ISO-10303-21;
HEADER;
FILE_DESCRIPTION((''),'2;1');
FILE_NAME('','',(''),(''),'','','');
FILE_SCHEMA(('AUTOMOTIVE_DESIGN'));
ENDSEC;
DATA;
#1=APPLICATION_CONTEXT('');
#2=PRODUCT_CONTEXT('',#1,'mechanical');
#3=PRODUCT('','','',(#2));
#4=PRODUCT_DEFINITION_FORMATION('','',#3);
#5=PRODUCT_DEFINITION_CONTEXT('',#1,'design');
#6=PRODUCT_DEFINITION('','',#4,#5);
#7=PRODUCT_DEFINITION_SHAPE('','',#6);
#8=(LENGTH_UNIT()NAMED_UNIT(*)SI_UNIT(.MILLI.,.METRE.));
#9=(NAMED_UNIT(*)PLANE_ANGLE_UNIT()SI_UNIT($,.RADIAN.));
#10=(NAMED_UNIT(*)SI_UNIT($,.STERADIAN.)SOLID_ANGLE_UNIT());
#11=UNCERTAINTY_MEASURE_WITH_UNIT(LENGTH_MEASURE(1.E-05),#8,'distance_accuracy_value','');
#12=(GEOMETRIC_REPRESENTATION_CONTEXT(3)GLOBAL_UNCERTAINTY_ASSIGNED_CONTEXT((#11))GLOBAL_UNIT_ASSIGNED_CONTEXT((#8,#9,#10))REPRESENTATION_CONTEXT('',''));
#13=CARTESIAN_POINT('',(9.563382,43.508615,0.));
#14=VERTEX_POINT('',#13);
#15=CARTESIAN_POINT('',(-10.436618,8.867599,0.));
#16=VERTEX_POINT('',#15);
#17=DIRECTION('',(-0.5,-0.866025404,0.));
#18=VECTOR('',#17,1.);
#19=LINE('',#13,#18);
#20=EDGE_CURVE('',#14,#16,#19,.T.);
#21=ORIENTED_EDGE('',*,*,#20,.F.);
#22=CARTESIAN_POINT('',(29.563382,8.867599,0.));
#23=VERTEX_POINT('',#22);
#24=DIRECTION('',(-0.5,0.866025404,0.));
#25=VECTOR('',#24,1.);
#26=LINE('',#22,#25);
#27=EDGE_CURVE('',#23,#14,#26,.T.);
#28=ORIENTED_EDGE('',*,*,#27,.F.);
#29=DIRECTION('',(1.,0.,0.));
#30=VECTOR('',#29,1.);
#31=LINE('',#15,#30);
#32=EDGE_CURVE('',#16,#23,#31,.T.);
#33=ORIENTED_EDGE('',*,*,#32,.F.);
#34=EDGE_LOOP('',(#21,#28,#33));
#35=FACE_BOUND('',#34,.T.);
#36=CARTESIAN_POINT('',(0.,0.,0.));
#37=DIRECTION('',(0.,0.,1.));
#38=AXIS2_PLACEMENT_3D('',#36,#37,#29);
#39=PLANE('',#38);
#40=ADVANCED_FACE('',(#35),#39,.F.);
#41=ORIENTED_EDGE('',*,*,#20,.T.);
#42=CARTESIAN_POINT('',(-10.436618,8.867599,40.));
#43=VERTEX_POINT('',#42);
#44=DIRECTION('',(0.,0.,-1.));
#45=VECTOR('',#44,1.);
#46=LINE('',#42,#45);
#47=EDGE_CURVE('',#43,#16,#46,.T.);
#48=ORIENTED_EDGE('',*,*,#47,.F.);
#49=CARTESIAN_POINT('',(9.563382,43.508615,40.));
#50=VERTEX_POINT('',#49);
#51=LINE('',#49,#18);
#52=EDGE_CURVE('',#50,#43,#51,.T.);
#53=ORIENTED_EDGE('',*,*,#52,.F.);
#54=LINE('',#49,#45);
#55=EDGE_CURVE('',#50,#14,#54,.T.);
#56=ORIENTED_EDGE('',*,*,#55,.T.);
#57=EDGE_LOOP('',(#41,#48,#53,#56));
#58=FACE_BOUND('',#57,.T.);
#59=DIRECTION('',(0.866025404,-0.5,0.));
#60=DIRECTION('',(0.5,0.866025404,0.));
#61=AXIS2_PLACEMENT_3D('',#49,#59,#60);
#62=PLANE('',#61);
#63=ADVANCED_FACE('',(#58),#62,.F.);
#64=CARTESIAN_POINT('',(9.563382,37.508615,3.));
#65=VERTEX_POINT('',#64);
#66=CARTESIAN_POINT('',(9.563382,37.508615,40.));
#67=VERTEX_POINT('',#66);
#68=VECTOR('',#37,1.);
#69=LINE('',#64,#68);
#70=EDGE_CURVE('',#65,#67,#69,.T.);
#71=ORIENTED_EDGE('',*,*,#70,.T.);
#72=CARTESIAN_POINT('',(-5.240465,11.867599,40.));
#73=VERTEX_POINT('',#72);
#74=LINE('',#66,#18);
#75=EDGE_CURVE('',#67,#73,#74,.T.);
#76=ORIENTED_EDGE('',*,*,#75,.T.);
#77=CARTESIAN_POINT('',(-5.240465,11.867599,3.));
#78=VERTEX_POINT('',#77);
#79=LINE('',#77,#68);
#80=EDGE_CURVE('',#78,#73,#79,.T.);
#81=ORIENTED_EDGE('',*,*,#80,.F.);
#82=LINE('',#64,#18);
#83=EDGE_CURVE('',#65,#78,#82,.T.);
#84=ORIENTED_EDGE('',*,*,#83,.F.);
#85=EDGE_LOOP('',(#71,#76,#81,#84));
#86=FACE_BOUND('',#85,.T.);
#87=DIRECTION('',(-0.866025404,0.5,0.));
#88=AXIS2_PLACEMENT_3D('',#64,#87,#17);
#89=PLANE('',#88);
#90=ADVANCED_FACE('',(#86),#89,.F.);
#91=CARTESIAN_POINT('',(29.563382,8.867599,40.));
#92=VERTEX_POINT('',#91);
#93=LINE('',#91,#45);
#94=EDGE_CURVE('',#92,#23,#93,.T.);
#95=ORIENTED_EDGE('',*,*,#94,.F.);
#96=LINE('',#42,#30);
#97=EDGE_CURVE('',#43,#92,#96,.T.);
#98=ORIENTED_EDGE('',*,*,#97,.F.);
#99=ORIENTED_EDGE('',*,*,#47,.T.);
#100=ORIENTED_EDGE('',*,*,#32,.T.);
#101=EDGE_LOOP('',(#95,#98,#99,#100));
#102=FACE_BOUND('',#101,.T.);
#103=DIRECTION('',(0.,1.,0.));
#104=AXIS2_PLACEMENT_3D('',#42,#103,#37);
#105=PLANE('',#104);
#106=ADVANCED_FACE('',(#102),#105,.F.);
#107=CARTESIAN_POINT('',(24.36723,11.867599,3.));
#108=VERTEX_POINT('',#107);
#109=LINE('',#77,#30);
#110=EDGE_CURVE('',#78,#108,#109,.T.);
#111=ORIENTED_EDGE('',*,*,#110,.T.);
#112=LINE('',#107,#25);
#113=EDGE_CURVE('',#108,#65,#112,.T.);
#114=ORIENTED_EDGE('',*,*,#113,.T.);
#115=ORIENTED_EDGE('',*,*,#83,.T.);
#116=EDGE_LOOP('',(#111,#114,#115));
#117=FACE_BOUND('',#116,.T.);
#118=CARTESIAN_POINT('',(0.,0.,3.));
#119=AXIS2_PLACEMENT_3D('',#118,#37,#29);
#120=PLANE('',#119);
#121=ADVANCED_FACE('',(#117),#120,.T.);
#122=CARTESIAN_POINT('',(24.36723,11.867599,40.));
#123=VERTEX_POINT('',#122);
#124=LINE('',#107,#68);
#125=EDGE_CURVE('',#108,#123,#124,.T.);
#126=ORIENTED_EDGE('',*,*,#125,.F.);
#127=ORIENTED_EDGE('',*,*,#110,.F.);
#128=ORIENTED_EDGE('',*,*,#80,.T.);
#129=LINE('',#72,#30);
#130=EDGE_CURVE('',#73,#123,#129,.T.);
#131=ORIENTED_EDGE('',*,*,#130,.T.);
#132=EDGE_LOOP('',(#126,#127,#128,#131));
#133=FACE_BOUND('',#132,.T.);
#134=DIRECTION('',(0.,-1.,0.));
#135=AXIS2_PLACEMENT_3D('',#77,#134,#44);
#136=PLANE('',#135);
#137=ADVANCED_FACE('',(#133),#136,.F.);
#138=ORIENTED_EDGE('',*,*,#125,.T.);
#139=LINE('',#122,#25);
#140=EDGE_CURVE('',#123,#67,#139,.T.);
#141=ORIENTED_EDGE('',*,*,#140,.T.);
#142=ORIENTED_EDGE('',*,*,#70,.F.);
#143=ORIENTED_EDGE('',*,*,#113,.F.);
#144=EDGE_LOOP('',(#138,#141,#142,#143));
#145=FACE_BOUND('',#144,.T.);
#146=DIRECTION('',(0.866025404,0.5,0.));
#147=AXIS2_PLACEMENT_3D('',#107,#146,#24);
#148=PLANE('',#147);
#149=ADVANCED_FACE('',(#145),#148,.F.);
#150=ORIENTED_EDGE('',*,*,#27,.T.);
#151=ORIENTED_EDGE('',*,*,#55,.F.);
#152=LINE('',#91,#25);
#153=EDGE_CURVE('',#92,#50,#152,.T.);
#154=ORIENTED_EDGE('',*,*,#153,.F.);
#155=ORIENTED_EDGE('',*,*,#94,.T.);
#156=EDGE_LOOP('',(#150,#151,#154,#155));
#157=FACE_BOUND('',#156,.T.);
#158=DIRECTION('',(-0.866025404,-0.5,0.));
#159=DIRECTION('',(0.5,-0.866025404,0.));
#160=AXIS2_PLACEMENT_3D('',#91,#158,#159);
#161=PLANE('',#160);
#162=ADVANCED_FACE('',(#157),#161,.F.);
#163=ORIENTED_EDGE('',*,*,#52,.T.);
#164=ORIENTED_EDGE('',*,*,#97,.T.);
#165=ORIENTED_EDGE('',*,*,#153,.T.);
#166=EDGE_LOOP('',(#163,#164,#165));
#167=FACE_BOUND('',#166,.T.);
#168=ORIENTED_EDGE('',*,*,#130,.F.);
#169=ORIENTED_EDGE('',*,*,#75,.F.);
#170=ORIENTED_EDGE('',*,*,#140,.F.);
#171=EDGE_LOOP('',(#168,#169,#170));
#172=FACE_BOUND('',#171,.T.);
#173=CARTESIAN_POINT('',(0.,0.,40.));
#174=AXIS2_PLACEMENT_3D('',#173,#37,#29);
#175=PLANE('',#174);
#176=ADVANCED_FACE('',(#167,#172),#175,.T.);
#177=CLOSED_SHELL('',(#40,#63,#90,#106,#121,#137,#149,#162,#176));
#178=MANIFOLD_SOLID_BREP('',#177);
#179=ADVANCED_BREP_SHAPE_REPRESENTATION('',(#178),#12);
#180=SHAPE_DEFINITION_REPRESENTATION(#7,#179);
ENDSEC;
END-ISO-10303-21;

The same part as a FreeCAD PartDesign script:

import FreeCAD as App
import Part
import Sketcher
Q = App.Units.Quantity


def add_polygon(sketch, points):
    """Adds a closed chain of lines whose ends are joined by coincident constraints."""
    first, n = sketch.GeometryCount, len(points)
    for a, b in zip(points, points[1:] + points[:1]):
        sketch.addGeometry(Part.LineSegment(App.Vector(*a, 0), App.Vector(*b, 0)), False)
    for i in range(n):
        sketch.addConstraint(Sketcher.Constraint("Coincident", first + i, 2, first + (i + 1) % n, 1))

doc = App.newDocument("Part")
params = doc.addObject("Spreadsheet::Sheet", "Params")
for row, (alias, value) in enumerate([
    ("sketch1_width", "40 mm"),
    ("pad1_length", "40 mm"),
    ("pocket1_length", "37 mm"),
], start=1):
    params.set(f"A{row}", alias)
    params.set(f"B{row}", "=" + value)
    params.setAlias(f"B{row}", alias)

body = doc.addObject("PartDesign::Body", "Body")

# Sketch on XY plane
sketch1 = body.newObject("Sketcher::SketchObject", "Sketch")
sketch1.AttachmentSupport = (doc.getObject("XY_Plane"), [""])
sketch1.MapMode = "FlatFace"
add_polygon(sketch1, [(10, 44), (-10, 9), (30, 9)])  # lines 0-2
sketch1.addConstraint([
    Sketcher.Constraint("Horizontal", 1),
    Sketcher.Constraint("Equal", 0, 2),
    Sketcher.Constraint("DistanceX", 1, 1, 1, 2, Q("40 mm")),
    Sketcher.Constraint("Angle", 0, Q("-120 deg")),
    Sketcher.Constraint("DistanceY", -1, 1, 0, 2, Q("8.867599 mm")),
    Sketcher.Constraint("DistanceX", 0, 2, -1, 1, Q("10.436618 mm")),
])
sketch1.setExpression("Constraints[5]", "Params.sketch1_width")
pad1 = body.newObject("PartDesign::Pad", "Pad")
pad1.Profile = sketch1
pad1.setExpression("Length", "Params.pad1_length")

# Sketch on XY plane
sketch2 = body.newObject("Sketcher::SketchObject", "Sketch001")
sketch2.AttachmentSupport = (doc.getObject("XY_Plane"), [""])
sketch2.MapMode = "FlatFace"
sketch2.AttachmentOffset = App.Placement(App.Vector(0, 0, 40), App.Rotation())
add_polygon(sketch2, [(10, 38), (-5, 12), (24, 12)])  # lines 0-2
sketch2.addConstraint([
    Sketcher.Constraint("Horizontal", 1),
    Sketcher.Constraint("Equal", 0, 2),
    Sketcher.Constraint("Angle", 0, Q("-120 deg")),
    Sketcher.Constraint("DistanceY", -1, 1, 0, 2, Q("11.867599 mm")),
    Sketcher.Constraint("DistanceX", 1, 1, 1, 2, Q("29.607695 mm")),
    Sketcher.Constraint("DistanceX", -1, 1, 1, 2, Q("24.36723 mm")),
])
pocket1 = body.newObject("PartDesign::Pocket", "Pocket")
pocket1.Profile = sketch2
pocket1.setExpression("Length", "Params.pocket1_length")

doc.recompute()
